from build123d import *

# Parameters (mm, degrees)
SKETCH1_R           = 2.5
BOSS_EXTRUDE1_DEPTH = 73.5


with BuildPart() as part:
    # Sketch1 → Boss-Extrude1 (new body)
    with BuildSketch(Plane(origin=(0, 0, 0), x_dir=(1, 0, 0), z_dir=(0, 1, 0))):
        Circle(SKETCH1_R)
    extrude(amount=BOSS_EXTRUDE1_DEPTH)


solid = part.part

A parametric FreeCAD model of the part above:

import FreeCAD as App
import Part
import Sketcher

V = App.Vector

doc = App.newDocument("Part")
body = doc.addObject("PartDesign::Body", "Body")

sketch1 = body.newObject("Sketcher::SketchObject", "Sketch")
sketch1.AttachmentSupport = (doc.getObject("XZ_Plane"), [""])
sketch1.MapMode = "FlatFace"
sketch1.addGeometry(Part.Circle(V(0, 0, 0), V(0, 0, 1), 2.5), False)
sketch1.addConstraint(Sketcher.Constraint("Coincident", 0, 3, -1, 1))
sketch1.addConstraint(Sketcher.Constraint("Diameter", 0, 5.0))
pad1 = body.newObject("PartDesign::Pad", "Pad")
pad1.Profile = sketch1
pad1.Length = 73.5
pad1.Reversed = True

doc.recompute()
